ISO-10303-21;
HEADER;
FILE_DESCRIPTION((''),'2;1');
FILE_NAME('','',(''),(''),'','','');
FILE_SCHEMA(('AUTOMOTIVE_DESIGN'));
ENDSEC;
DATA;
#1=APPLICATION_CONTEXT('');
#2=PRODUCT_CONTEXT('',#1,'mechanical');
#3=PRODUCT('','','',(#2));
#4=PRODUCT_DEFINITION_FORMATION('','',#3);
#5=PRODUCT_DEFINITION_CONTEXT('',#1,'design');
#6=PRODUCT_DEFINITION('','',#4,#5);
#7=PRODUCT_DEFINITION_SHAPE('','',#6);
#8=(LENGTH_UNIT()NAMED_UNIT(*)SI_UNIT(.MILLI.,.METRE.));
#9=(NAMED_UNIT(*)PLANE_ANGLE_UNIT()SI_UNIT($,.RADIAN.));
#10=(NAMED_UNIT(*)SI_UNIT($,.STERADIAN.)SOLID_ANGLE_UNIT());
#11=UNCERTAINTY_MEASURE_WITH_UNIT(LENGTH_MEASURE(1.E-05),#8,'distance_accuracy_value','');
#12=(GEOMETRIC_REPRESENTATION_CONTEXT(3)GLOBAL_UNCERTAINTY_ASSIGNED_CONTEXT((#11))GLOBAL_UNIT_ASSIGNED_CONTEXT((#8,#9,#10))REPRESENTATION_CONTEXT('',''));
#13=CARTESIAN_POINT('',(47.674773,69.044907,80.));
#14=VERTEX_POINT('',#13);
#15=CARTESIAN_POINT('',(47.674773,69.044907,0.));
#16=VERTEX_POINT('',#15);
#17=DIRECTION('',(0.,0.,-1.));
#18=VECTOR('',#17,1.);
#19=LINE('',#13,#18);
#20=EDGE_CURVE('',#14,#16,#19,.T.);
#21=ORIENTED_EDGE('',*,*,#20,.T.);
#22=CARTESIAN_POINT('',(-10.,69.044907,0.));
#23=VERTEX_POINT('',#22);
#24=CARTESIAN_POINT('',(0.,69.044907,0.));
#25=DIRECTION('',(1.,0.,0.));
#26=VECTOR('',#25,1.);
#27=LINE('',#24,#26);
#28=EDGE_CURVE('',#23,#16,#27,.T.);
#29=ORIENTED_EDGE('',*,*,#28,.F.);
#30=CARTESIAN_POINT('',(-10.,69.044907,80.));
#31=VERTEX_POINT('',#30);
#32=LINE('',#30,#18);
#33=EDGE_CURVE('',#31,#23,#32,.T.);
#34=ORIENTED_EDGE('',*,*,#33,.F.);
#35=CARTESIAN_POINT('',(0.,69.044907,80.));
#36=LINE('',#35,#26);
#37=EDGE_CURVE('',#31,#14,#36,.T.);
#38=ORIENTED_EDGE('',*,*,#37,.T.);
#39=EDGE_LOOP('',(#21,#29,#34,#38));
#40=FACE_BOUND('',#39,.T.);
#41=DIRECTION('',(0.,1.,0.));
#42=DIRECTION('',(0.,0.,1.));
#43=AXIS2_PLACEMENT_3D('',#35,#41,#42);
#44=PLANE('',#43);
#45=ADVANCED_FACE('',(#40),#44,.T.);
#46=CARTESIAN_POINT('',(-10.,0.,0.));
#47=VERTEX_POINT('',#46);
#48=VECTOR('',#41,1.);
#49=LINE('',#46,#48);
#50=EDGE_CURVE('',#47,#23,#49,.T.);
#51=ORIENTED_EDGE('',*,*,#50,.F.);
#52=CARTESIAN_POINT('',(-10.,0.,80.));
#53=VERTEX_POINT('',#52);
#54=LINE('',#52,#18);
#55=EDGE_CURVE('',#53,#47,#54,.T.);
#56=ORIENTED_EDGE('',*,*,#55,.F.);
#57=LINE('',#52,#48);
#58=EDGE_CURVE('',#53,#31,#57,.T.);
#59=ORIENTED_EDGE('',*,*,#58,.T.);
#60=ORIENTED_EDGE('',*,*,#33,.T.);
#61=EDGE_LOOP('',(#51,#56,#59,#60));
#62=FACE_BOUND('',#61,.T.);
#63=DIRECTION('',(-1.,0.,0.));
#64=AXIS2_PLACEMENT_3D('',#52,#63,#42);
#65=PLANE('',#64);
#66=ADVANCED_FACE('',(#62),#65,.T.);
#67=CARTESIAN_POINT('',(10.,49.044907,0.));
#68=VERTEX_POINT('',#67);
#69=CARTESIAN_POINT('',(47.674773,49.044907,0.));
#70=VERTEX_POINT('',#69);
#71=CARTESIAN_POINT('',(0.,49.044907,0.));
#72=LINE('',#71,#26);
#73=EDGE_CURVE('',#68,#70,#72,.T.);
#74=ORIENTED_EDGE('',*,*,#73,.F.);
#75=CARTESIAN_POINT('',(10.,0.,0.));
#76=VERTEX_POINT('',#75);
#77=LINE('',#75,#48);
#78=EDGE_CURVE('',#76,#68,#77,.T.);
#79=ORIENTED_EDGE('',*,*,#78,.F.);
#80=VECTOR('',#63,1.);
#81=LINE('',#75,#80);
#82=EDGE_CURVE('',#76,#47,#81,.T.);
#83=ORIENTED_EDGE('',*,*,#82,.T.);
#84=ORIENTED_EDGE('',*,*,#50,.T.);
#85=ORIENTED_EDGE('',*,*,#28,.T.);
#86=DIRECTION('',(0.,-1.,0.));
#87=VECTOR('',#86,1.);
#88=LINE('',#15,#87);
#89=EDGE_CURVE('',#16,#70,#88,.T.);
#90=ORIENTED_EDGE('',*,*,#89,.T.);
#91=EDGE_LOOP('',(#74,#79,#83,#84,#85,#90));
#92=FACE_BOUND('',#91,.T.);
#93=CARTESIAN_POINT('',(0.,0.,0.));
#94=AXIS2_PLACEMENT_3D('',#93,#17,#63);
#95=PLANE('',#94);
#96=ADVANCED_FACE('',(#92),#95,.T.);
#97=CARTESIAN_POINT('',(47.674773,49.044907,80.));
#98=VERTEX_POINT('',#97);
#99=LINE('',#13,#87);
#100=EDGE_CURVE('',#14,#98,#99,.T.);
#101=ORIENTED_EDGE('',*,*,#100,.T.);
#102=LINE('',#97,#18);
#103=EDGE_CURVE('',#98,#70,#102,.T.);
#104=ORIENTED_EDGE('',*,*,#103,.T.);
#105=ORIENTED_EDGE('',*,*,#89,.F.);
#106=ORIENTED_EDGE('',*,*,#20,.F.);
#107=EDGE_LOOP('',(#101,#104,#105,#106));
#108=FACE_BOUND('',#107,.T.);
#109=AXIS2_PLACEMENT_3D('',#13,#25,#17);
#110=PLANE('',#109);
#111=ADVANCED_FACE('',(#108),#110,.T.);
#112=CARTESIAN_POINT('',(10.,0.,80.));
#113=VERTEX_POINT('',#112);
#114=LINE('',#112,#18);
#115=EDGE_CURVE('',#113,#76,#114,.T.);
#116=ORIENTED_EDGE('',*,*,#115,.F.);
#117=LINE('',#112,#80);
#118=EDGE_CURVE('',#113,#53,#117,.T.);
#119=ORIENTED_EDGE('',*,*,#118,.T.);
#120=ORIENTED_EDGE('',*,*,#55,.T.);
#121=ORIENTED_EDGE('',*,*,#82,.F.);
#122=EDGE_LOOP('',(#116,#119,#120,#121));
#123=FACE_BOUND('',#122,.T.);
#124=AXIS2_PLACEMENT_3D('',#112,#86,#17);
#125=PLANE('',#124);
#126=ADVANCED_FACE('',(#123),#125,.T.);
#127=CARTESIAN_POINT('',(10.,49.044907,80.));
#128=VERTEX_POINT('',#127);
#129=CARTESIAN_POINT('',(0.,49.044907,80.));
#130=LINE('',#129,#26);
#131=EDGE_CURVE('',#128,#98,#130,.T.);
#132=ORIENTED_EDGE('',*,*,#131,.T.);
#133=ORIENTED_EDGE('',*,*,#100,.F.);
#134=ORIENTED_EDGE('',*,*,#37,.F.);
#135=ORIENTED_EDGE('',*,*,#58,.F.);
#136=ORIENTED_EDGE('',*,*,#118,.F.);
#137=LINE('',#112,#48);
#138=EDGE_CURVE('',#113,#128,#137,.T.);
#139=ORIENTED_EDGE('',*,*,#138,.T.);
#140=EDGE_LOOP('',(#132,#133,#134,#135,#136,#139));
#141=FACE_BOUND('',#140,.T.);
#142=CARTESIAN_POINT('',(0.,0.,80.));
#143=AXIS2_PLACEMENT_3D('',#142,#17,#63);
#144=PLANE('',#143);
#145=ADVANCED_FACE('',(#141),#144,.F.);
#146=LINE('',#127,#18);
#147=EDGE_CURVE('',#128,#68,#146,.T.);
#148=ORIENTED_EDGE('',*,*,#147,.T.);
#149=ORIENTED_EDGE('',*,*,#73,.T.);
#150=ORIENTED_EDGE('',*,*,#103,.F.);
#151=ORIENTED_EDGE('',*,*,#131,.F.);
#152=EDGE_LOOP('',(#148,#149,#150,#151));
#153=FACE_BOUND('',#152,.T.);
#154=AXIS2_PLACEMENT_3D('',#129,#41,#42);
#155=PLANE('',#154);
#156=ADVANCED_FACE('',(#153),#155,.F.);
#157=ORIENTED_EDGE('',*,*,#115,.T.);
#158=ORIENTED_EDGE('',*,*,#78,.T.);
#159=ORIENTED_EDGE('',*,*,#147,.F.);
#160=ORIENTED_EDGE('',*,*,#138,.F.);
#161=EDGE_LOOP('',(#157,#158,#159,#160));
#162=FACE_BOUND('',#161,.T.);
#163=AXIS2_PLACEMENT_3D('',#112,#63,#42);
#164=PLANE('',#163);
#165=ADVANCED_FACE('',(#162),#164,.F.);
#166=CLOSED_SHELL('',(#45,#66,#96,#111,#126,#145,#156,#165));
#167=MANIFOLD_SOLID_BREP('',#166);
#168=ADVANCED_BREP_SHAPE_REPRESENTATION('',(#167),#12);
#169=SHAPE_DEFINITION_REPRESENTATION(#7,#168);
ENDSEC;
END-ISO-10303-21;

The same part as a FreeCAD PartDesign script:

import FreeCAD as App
import Part
import Sketcher

V = App.Vector

doc = App.newDocument("Part")
params = doc.addObject("Spreadsheet::Sheet", "Params")
for row, (alias, value) in enumerate([
    ("sketch1_width", "20 mm"),
    ("pad1_length", "80 mm"),
], start=1):
    params.set(f"A{row}", alias)
    params.set(f"B{row}", "=" + value)
    params.setAlias(f"B{row}", alias)

body = doc.addObject("PartDesign::Body", "Body")

# Sketch on XY plane
sketch1 = body.newObject("Sketcher::SketchObject", "Sketch")
sketch1.AttachmentSupport = (doc.getObject("XY_Plane"), [""])
sketch1.MapMode = "FlatFace"
sketch1.addGeometry(Part.LineSegment(V(10, 0, 0), V(10, 49, 0)), False)
sketch1.addGeometry(Part.LineSegment(V(10, 49, 0), V(48, 49, 0)), False)
sketch1.addGeometry(Part.LineSegment(V(48, 49, 0), V(48, 69, 0)), False)
sketch1.addGeometry(Part.LineSegment(V(48, 69, 0), V(-10, 69, 0)), False)
sketch1.addGeometry(Part.LineSegment(V(-10, 69, 0), V(-10, 0, 0)), False)
sketch1.addGeometry(Part.LineSegment(V(-10, 0, 0), V(10, 0, 0)), False)
sketch1.addConstraint(Sketcher.Constraint("Coincident", 0, 2, 1, 1))
sketch1.addConstraint(Sketcher.Constraint("Coincident", 1, 2, 2, 1))
sketch1.addConstraint(Sketcher.Constraint("Coincident", 2, 2, 3, 1))
sketch1.addConstraint(Sketcher.Constraint("Coincident", 3, 2, 4, 1))
sketch1.addConstraint(Sketcher.Constraint("Coincident", 4, 2, 5, 1))
sketch1.addConstraint(Sketcher.Constraint("Coincident", 5, 2, 0, 1))
sketch1.addConstraint(Sketcher.Constraint("Vertical", 0))
sketch1.addConstraint(Sketcher.Constraint("Horizontal", 1))
sketch1.addConstraint(Sketcher.Constraint("Vertical", 2))
sketch1.addConstraint(Sketcher.Constraint("Horizontal", 3))
sketch1.addConstraint(Sketcher.Constraint("Vertical", 4))
sketch1.addConstraint(Sketcher.Constraint("Horizontal", 5))
sketch1.addConstraint(Sketcher.Constraint("Symmetric", 4, 2, 5, 2, -1, 1))
sketch1.addConstraint(Sketcher.Constraint("Equal", 5, 2))
sketch1.addConstraint(Sketcher.Constraint("DistanceX", 5, 1, 5, 2, 20.0))
sketch1.addConstraint(Sketcher.Constraint("DistanceX", 1, 1, 1, 2, 37.674773))
sketch1.addConstraint(Sketcher.Constraint("DistanceY", 0, 1, 0, 2, 49.044907))
sketch1.setExpression("Constraints[14]", "Params.sketch1_width")
pad1 = body.newObject("PartDesign::Pad", "Pad")
pad1.Profile = sketch1
pad1.setExpression("Length", "Params.pad1_length")

doc.recompute()
